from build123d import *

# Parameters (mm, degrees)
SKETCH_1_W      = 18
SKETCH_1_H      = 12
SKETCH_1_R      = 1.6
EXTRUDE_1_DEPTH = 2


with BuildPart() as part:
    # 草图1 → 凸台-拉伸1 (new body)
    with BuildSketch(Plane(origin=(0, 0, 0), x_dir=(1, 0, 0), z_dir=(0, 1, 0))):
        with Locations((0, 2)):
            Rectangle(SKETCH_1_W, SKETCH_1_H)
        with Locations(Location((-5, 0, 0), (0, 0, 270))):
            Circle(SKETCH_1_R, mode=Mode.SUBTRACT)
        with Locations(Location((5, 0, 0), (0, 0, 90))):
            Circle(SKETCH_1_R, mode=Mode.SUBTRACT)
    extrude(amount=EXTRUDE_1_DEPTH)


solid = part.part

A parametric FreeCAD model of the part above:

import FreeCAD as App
import Part
import Sketcher

V = App.Vector
Q = App.Units.Quantity


def add_polygon(sketch, points):
    """Adds a closed chain of lines whose ends are joined by coincident constraints."""
    first, n = sketch.GeometryCount, len(points)
    for a, b in zip(points, points[1:] + points[:1]):
        sketch.addGeometry(Part.LineSegment(App.Vector(*a, 0), App.Vector(*b, 0)), False)
    for i in range(n):
        sketch.addConstraint(Sketcher.Constraint("Coincident", first + i, 2, first + (i + 1) % n, 1))

doc = App.newDocument("Part")
body = doc.addObject("PartDesign::Body", "Body")

# Sketch on XZ plane
sketch1 = doc.addObject("Sketcher::SketchObject", "Sketch")
body.addObject(sketch1)
sketch1.AttachmentSupport = (doc.XZ_Plane, [""])
sketch1.MapMode = "FlatFace"
add_polygon(sketch1, [(-9, -8), (-9, 4), (9, 4), (9, -8)])  # lines 0-3
sketch1.addGeometry(Part.Circle(V(-5, 0, 0), V(0, 0, 1), 1.6), False)  # 4
sketch1.addGeometry(Part.Circle(V(5, 0, 0), V(0, 0, 1), 1.6), False)  # 5
sketch1.addConstraint(Sketcher.Constraint("Vertical", 0))
sketch1.addConstraint(Sketcher.Constraint("Horizontal", 1))
sketch1.addConstraint(Sketcher.Constraint("Vertical", 2))
sketch1.addConstraint(Sketcher.Constraint("Horizontal", 3))
sketch1.addConstraint(Sketcher.Constraint("Equal", 4, 5))
sketch1.addConstraint(Sketcher.Constraint("Symmetric", 4, 3, 5, 3, -1, 1))
sketch1.addConstraint(Sketcher.Constraint("PointOnObject", 4, 3, -1))
sketch1.addConstraint(Sketcher.Constraint("Diameter", 4, Q("3.2 mm")))
sketch1.addConstraint(Sketcher.Constraint("DistanceX", 1, 1, 1, 2, Q("18 mm")))
sketch1.addConstraint(Sketcher.Constraint("DistanceY", 0, 1, 0, 2, Q("12 mm")))
sketch1.addConstraint(Sketcher.Constraint("DistanceX", 4, 3, -1, 1, Q("5 mm")))
sketch1.addConstraint(Sketcher.Constraint("DistanceX", 0, 2, -1, 1, Q("9 mm")))
sketch1.addConstraint(Sketcher.Constraint("DistanceY", -1, 1, 0, 2, Q("4 mm")))
pad1 = doc.addObject("PartDesign::Pad", "Pad")
body.addObject(pad1)
pad1.Profile = sketch1
pad1.Length = 2
pad1.Reversed = True

doc.recompute()
